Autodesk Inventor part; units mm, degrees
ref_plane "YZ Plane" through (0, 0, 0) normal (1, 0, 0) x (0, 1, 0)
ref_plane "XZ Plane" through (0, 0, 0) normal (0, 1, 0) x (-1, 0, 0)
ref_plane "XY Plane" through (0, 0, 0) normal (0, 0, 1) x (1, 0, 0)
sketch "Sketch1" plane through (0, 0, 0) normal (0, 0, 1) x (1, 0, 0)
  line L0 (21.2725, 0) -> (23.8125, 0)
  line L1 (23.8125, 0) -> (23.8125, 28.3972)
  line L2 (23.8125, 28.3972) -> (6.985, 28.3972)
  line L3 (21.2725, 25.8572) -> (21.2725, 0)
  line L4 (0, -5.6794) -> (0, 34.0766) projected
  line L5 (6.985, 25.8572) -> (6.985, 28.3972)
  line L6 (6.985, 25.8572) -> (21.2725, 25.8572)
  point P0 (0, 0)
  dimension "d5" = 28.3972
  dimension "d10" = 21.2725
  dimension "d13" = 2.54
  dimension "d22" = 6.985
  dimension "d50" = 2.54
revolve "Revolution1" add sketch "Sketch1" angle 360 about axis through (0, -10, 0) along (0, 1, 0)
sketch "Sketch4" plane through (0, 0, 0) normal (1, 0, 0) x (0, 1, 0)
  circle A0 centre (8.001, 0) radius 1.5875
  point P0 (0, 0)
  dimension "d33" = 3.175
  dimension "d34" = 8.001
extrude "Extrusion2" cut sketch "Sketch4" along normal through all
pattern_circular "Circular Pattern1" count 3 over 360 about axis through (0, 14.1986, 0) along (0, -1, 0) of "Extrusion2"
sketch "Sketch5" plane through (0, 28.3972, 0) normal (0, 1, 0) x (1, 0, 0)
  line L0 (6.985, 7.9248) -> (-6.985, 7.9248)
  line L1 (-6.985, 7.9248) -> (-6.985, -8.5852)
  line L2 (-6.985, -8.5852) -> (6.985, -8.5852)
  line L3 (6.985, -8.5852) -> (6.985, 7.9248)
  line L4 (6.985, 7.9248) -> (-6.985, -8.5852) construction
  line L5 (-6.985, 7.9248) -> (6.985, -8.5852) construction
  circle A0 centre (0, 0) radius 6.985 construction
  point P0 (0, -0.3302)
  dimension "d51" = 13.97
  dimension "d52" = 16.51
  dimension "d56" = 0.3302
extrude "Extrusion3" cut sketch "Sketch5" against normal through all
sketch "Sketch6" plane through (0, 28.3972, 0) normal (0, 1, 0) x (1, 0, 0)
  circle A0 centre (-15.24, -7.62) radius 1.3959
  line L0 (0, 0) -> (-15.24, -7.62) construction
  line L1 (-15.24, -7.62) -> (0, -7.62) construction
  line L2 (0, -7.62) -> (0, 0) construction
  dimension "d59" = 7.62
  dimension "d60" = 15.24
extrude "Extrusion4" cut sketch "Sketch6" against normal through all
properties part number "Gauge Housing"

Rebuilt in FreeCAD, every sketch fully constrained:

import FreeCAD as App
import Part
import Sketcher

V = App.Vector
Q = App.Units.Quantity


def add_polygon(sketch, points):
    """Adds a closed chain of lines whose ends are joined by coincident constraints."""
    first, n = sketch.GeometryCount, len(points)
    for a, b in zip(points, points[1:] + points[:1]):
        sketch.addGeometry(Part.LineSegment(App.Vector(*a, 0), App.Vector(*b, 0)), False)
    for i in range(n):
        sketch.addConstraint(Sketcher.Constraint("Coincident", first + i, 2, first + (i + 1) % n, 1))

doc = App.newDocument("Part")
body = doc.addObject("PartDesign::Body", "Body")

sketch1 = body.newObject("Sketcher::SketchObject", "Sketch")
sketch1.AttachmentSupport = (doc.getObject("XY_Plane"), [""])
sketch1.MapMode = "FlatFace"
add_polygon(sketch1, [(21.3, 25.9), (21.3, 0), (23.8, 0), (23.8, 28.4), (7, 28.4), (7, 25.9)])
sketch1.addConstraint([
    Sketcher.Constraint("Vertical", 0),
    Sketcher.Constraint("Horizontal", 1),
    Sketcher.Constraint("Vertical", 2),
    Sketcher.Constraint("Horizontal", 3),
    Sketcher.Constraint("Vertical", 4),
    Sketcher.Constraint("Horizontal", 5),
    Sketcher.Constraint("PointOnObject", 0, 2, -1),
    Sketcher.Constraint("Equal", 1, 4),
    Sketcher.Constraint("DistanceX", 1, 1, 1, 2, Q("0.1 in")),
    Sketcher.Constraint("DistanceY", 2, 1, 2, 2, Q("1.118 in")),
    Sketcher.Constraint("DistanceX", -1, 1, 3, 2, Q("0.275 in")),
    Sketcher.Constraint("DistanceX", -1, 1, 0, 2, Q("0.8375 in")),
])
revolution = body.newObject("PartDesign::Revolution", "Revolution")
revolution.Profile = sketch1
revolution.ReferenceAxis = (sketch1, ["V_Axis"])
revolution.Angle = 360

sketch2 = body.newObject("Sketcher::SketchObject", "Sketch001")
sketch2.AttachmentSupport = (doc.getObject("YZ_Plane"), [""])
sketch2.MapMode = "FlatFace"
sketch2.addGeometry(Part.Circle(V(8, 0, 0), V(0, 0, 1), 1.6), False)
sketch2.addConstraint([
    Sketcher.Constraint("PointOnObject", 0, 3, -1),
    Sketcher.Constraint("Diameter", 0, Q("0.125 in")),
    Sketcher.Constraint("DistanceX", -1, 1, 0, 3, Q("0.315 in")),
])
pocket1 = body.newObject("PartDesign::Pocket", "Pocket")
pocket1.Profile = sketch2
pocket1.Type = "ThroughAll"
pocket1.Reversed = True
doc.recompute()

polarpattern = body.newObject("PartDesign::PolarPattern", "PolarPattern")
polarpattern.Originals = [pocket1]
polarpattern.Axis = (doc.getObject("Y_Axis"), [""])
polarpattern.Angle = 360
polarpattern.Occurrences = 3
body.Tip = polarpattern

sketch3 = body.newObject("Sketcher::SketchObject", "Sketch002")
sketch3.AttachmentSupport = (doc.getObject("XZ_Plane"), [""])
sketch3.MapMode = "FlatFace"
sketch3.AttachmentOffset = App.Placement(V(0, 0, -1.118 * 25.4), App.Rotation())
add_polygon(sketch3, [(7, 9), (7, -8), (-7, -8), (-7, 9)])
sketch3.addConstraint([
    Sketcher.Constraint("Vertical", 0),
    Sketcher.Constraint("Horizontal", 1),
    Sketcher.Constraint("Vertical", 2),
    Sketcher.Constraint("Horizontal", 3),
    Sketcher.Constraint("DistanceX", 1, 2, 1, 1, Q("0.55 in")),
    Sketcher.Constraint("DistanceY", 0, 2, 0, 1, Q("0.65 in")),
    Sketcher.Constraint("DistanceX", -1, 1, 0, 2, Q("0.275 in")),
    Sketcher.Constraint("DistanceY", 0, 2, -1, 1, Q("0.312 in")),
])
pocket2 = body.newObject("PartDesign::Pocket", "Pocket001")
pocket2.Profile = sketch3
pocket2.Type = "ThroughAll"
pocket2.Reversed = True

sketch4 = body.newObject("Sketcher::SketchObject", "Sketch003")
sketch4.AttachmentSupport = (doc.getObject("XZ_Plane"), [""])
sketch4.MapMode = "FlatFace"
sketch4.AttachmentOffset = App.Placement(V(0, 0, -1.118 * 25.4), App.Rotation())
sketch4.addGeometry(Part.Circle(V(-15.2, 7.6, 0), V(0, 0, 1), 1.4), False)
sketch4.addConstraint([
    Sketcher.Constraint("DistanceX", 0, 3, -1, 1, Q("0.6 in")),
    Sketcher.Constraint("DistanceY", -1, 1, 0, 3, Q("0.3 in")),
    Sketcher.Constraint("Diameter", 0, Q("2.7918 mm")),
])
pocket3 = body.newObject("PartDesign::Pocket", "Pocket002")
pocket3.Profile = sketch4
pocket3.Type = "ThroughAll"
pocket3.Reversed = True

doc.recompute()
